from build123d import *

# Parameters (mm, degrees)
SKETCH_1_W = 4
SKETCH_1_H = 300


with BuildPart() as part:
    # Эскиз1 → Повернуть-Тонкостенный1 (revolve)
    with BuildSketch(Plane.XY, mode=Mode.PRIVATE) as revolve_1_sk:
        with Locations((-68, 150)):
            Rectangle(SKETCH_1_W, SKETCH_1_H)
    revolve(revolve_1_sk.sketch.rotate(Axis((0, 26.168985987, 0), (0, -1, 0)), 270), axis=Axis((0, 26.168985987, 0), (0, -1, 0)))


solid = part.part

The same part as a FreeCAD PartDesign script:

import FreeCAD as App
import Part
import Sketcher

doc = App.newDocument("Part")
body = doc.addObject("PartDesign::Body", "Body")

sketch1 = body.newObject("Sketcher::SketchObject", "Sketch")
sketch1.AttachmentSupport = (doc.getObject("XY_Plane"), [""])
sketch1.MapMode = "FlatFace"
sketch1.addGeometry(Part.LineSegment(App.Vector(-70, 300, 0), App.Vector(-70, 0, 0)), False)
sketch1.addGeometry(Part.LineSegment(App.Vector(-70, 0, 0), App.Vector(-66, 0, 0)), False)
sketch1.addGeometry(Part.LineSegment(App.Vector(-66, 0, 0), App.Vector(-66, 300, 0)), False)
sketch1.addGeometry(Part.LineSegment(App.Vector(-66, 300, 0), App.Vector(-70, 300, 0)), False)
sketch1.addConstraint(Sketcher.Constraint("Coincident", 0, 2, 1, 1))
sketch1.addConstraint(Sketcher.Constraint("Coincident", 1, 2, 2, 1))
sketch1.addConstraint(Sketcher.Constraint("Coincident", 2, 2, 3, 1))
sketch1.addConstraint(Sketcher.Constraint("Coincident", 3, 2, 0, 1))
sketch1.addConstraint(Sketcher.Constraint("Vertical", 0))
sketch1.addConstraint(Sketcher.Constraint("Horizontal", 1))
sketch1.addConstraint(Sketcher.Constraint("Vertical", 2))
sketch1.addConstraint(Sketcher.Constraint("Horizontal", 3))
sketch1.addConstraint(Sketcher.Constraint("PointOnObject", 0, 2, -1))
sketch1.addConstraint(Sketcher.Constraint("DistanceX", 1, 1, 1, 2, 4.0))
sketch1.addConstraint(Sketcher.Constraint("DistanceY", 0, 2, 0, 1, 300.0))
sketch1.addConstraint(Sketcher.Constraint("DistanceX", 0, 2, -1, 1, 70.0))
revolution = body.newObject("PartDesign::Revolution", "Revolution")
revolution.Profile = sketch1
revolution.ReferenceAxis = (sketch1, ["V_Axis"])
revolution.Angle = 360

doc.recompute()
